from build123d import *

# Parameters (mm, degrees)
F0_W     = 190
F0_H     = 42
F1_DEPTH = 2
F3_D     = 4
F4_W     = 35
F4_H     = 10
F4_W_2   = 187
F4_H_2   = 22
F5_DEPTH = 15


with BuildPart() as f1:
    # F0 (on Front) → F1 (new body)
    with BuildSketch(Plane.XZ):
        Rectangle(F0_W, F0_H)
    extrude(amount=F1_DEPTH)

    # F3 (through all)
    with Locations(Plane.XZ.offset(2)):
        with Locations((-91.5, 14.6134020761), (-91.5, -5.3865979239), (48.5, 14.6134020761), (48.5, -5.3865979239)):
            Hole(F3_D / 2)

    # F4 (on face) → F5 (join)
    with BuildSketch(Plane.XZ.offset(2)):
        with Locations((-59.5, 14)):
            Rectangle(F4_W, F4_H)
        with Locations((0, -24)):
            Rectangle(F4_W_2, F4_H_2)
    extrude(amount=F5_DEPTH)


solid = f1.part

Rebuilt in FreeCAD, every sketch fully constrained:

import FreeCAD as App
import Part
import Sketcher

V = App.Vector
Q = App.Units.Quantity


def add_polygon(sketch, points):
    """Adds a closed chain of lines whose ends are joined by coincident constraints."""
    first, n = sketch.GeometryCount, len(points)
    for a, b in zip(points, points[1:] + points[:1]):
        sketch.addGeometry(Part.LineSegment(App.Vector(*a, 0), App.Vector(*b, 0)), False)
    for i in range(n):
        sketch.addConstraint(Sketcher.Constraint("Coincident", first + i, 2, first + (i + 1) % n, 1))

doc = App.newDocument("Part")
body = doc.addObject("PartDesign::Body", "Body")

# Sketch on XZ plane
sketch1 = body.newObject("Sketcher::SketchObject", "Sketch")
sketch1.AttachmentSupport = (doc.getObject("XZ_Plane"), [""])
sketch1.MapMode = "FlatFace"
add_polygon(sketch1, [(-95, 21), (-95, -21), (95, -21), (95, 21)])  # lines 0-3
sketch1.addConstraint([
    Sketcher.Constraint("Vertical", 0),
    Sketcher.Constraint("Horizontal", 1),
    Sketcher.Constraint("Vertical", 2),
    Sketcher.Constraint("Horizontal", 3),
    Sketcher.Constraint("Symmetric", 0, 2, 2, 2, -1, 1),
    Sketcher.Constraint("DistanceX", 1, 1, 1, 2, Q("190 mm")),
    Sketcher.Constraint("DistanceY", 0, 2, 0, 1, Q("42 mm")),
])
pad1 = body.newObject("PartDesign::Pad", "Pad")
pad1.Profile = sketch1
pad1.Length = 2

# Sketch on XZ plane
sketch2 = body.newObject("Sketcher::SketchObject", "Sketch001")
sketch2.AttachmentSupport = (doc.getObject("XZ_Plane"), [""])
sketch2.MapMode = "FlatFace"
sketch2.AttachmentOffset = App.Placement(V(0, 0, 2), App.Rotation())
sketch2.addGeometry([
    Part.Circle(V(-91.5, 14.6, 0), V(0, 0, 1), 2),
    Part.Circle(V(-91.5, -5.4, 0), V(0, 0, 1), 2),
    Part.Circle(V(48.5, 14.6, 0), V(0, 0, 1), 2),
    Part.Circle(V(48.5, -5.4, 0), V(0, 0, 1), 2),
], False)
sketch2.addConstraint([
    Sketcher.Constraint("Equal", 0, 1),
    Sketcher.Constraint("Equal", 1, 2),
    Sketcher.Constraint("Equal", 2, 3),
    Sketcher.Constraint("Horizontal", 0, 3, 2, 3),
    Sketcher.Constraint("Horizontal", 1, 3, 3, 3),
    Sketcher.Constraint("Vertical", 0, 3, 1, 3),
    Sketcher.Constraint("Vertical", 2, 3, 3, 3),
    Sketcher.Constraint("Diameter", 0, Q("4 mm")),
    Sketcher.Constraint("DistanceY", 1, 3, 0, 3, Q("20 mm")),
    Sketcher.Constraint("DistanceX", 0, 3, 2, 3, Q("140 mm")),
    Sketcher.Constraint("DistanceX", 0, 3, -1, 1, Q("91.5 mm")),
    Sketcher.Constraint("DistanceY", -1, 1, 0, 3, Q("14.613402 mm")),
])
doc.recompute()
hole = body.newObject("PartDesign::Hole", "Hole")
hole.Profile = sketch2
hole.ThreadType = "None"
hole.Diameter = 4
hole.DepthType = "ThroughAll"

# Sketch on XZ plane
sketch3 = body.newObject("Sketcher::SketchObject", "Sketch002")
sketch3.AttachmentSupport = (doc.getObject("XZ_Plane"), [""])
sketch3.MapMode = "FlatFace"
sketch3.AttachmentOffset = App.Placement(V(0, 0, 2), App.Rotation())
add_polygon(sketch3, [(-77, 19), (-77, 9), (-42, 9), (-42, 19)])  # lines 0-3
add_polygon(sketch3, [(-94, -13), (-94, -35), (94, -35), (94, -13)])  # lines 4-7
sketch3.addConstraint([
    Sketcher.Constraint("Vertical", 0),
    Sketcher.Constraint("Horizontal", 1),
    Sketcher.Constraint("Vertical", 2),
    Sketcher.Constraint("Horizontal", 3),
    Sketcher.Constraint("Vertical", 4),
    Sketcher.Constraint("Horizontal", 5),
    Sketcher.Constraint("Vertical", 6),
    Sketcher.Constraint("Horizontal", 7),
    Sketcher.Constraint("DistanceX", 1, 1, 1, 2, Q("35 mm")),
    Sketcher.Constraint("DistanceX", 5, 1, 5, 2, Q("187 mm")),
    Sketcher.Constraint("DistanceY", 0, 2, 0, 1, Q("10 mm")),
    Sketcher.Constraint("DistanceY", 4, 2, 4, 1, Q("22 mm")),
    Sketcher.Constraint("DistanceX", 0, 2, -1, 1, Q("77 mm")),
    Sketcher.Constraint("DistanceY", -1, 1, 0, 2, Q("9 mm")),
    Sketcher.Constraint("DistanceY", 4, 2, -1, 1, Q("35 mm")),
    Sketcher.Constraint("DistanceX", 4, 2, -1, 1, Q("93.5 mm")),
])
pad2 = body.newObject("PartDesign::Pad", "Pad001")
pad2.Profile = sketch3
pad2.Length = 15

doc.recompute()
